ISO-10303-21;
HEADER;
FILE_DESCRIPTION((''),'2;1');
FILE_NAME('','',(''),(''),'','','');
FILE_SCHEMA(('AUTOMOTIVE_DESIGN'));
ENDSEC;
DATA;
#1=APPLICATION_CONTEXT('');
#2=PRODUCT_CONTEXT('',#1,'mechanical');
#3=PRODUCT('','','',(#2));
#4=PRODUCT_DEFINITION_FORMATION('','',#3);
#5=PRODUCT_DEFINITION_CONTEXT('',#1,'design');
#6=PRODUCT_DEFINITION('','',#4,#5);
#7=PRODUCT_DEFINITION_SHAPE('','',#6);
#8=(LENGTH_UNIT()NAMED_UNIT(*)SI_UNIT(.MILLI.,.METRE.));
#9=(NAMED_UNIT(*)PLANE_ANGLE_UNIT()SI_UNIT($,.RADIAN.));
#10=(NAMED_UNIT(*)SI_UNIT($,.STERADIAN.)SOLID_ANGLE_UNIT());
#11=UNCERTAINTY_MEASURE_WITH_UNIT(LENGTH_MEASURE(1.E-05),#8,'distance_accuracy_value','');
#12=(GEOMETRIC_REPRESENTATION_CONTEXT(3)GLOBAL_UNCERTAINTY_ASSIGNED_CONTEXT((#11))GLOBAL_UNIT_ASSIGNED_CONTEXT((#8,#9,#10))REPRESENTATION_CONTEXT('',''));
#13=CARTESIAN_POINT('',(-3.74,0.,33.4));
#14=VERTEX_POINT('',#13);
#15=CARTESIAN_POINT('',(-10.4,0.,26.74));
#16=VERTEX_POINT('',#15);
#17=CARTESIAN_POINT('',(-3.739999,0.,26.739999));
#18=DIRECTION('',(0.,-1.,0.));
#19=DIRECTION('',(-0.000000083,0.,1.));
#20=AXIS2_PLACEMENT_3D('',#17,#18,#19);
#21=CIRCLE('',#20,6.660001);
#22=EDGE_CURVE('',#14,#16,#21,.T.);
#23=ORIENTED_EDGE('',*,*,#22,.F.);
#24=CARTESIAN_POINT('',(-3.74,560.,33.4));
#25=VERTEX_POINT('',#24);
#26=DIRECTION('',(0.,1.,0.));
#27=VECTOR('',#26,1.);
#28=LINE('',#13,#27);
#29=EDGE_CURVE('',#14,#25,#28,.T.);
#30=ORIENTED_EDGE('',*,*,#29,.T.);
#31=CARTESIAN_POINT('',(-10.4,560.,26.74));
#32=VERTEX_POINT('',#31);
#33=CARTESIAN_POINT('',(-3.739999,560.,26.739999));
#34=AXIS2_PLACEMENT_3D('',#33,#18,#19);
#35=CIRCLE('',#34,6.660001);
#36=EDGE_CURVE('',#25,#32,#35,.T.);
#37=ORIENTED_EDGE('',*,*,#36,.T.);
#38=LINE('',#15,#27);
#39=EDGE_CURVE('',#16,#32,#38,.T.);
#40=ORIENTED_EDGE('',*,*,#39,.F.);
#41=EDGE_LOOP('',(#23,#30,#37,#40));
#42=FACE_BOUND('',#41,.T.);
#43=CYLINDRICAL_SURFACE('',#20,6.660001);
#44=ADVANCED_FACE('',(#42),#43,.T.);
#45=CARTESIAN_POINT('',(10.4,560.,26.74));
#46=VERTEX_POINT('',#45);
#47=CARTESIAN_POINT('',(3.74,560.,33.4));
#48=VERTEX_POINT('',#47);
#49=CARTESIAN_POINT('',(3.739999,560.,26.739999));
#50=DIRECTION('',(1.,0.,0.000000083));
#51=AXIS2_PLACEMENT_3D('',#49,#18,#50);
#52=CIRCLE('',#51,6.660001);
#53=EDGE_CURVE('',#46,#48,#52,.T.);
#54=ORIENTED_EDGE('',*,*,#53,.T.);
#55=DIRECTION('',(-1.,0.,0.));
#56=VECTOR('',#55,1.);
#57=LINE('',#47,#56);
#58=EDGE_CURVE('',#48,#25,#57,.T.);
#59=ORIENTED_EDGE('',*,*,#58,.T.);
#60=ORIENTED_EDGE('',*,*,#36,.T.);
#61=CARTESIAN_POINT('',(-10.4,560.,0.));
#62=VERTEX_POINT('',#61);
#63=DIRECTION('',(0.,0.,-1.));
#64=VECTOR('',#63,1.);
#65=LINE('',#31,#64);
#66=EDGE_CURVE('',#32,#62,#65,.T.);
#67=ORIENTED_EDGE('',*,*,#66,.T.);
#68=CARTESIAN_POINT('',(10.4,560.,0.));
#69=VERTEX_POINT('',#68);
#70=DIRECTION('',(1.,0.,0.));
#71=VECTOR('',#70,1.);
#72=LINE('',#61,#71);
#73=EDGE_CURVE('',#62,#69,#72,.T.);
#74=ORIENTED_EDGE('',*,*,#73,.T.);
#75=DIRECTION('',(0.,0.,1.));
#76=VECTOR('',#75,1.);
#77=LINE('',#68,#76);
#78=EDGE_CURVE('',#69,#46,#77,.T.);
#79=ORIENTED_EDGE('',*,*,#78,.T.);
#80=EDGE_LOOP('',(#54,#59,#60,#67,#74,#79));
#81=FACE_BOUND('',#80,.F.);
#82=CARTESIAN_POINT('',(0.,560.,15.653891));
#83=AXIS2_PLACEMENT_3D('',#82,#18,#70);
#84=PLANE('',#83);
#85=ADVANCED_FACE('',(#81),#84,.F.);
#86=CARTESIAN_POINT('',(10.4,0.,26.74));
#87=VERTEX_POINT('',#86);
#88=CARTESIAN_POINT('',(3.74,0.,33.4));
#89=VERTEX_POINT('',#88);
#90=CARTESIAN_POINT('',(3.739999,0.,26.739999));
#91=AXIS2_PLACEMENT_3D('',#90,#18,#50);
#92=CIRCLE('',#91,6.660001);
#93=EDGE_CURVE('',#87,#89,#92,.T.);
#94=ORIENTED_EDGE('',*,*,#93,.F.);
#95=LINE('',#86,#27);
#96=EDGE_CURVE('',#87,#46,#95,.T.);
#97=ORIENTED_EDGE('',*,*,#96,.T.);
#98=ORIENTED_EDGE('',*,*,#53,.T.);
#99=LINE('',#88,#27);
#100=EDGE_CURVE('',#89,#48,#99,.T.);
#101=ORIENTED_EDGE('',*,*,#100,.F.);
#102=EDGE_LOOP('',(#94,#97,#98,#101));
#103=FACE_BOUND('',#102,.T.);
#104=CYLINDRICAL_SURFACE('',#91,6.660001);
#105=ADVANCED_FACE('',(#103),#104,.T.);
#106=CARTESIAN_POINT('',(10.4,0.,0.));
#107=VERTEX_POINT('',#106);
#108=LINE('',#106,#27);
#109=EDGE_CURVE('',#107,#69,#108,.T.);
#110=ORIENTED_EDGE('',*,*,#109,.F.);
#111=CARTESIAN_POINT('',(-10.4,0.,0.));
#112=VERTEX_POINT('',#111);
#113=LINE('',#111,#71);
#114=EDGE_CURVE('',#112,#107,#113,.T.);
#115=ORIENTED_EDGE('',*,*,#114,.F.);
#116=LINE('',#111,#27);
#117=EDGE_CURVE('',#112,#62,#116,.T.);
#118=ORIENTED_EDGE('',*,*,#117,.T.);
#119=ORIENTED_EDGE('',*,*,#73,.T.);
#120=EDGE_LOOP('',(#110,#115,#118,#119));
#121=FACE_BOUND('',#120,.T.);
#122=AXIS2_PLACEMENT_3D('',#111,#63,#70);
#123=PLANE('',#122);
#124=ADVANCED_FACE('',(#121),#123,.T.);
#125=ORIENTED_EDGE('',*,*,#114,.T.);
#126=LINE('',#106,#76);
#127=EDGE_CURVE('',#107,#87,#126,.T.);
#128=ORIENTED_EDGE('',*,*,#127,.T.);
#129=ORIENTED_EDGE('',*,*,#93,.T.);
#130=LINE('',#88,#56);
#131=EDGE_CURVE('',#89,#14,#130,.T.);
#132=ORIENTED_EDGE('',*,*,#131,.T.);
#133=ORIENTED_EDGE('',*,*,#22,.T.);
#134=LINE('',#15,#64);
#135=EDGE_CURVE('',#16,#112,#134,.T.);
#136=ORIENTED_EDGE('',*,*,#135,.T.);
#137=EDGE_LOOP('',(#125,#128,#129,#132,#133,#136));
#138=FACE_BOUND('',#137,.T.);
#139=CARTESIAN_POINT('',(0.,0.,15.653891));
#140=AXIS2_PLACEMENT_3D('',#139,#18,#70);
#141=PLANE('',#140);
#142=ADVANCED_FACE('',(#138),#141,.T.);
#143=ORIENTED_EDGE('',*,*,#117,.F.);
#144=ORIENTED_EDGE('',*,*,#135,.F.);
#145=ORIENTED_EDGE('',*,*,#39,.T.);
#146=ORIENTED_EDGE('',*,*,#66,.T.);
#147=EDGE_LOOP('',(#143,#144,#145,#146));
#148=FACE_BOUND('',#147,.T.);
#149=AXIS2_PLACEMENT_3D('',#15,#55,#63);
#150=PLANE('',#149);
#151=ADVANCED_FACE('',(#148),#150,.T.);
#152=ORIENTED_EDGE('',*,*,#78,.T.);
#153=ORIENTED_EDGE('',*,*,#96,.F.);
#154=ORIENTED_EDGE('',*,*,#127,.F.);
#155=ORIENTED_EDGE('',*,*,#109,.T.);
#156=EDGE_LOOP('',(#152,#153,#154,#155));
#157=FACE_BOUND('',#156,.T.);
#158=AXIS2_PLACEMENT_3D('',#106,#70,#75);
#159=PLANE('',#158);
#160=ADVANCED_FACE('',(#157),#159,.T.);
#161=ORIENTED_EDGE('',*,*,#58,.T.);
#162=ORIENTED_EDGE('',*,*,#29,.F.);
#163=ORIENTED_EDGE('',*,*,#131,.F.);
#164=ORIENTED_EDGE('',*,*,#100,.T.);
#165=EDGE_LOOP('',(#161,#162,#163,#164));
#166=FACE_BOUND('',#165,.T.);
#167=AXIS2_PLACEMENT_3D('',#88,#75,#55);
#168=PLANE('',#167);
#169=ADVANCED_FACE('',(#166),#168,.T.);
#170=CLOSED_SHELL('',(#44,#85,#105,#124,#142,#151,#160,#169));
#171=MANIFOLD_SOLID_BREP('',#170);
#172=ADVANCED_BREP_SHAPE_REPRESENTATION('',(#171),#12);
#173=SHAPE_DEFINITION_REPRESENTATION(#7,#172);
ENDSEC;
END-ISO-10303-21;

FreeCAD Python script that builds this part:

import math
import FreeCAD as App
import Part
import Sketcher

V = App.Vector
Q = App.Units.Quantity

doc = App.newDocument("Part")
body = doc.addObject("PartDesign::Body", "Body")

sketch1 = body.newObject("Sketcher::SketchObject", "Sketch")
sketch1.AttachmentSupport = (doc.getObject("XZ_Plane"), [""])
sketch1.MapMode = "FlatFace"
sketch1.addGeometry([
    Part.LineSegment(V(-10, 27, 0), V(-10, 0, 0)),
    Part.LineSegment(V(-10, 0, 0), V(10, 0, 0)),
    Part.LineSegment(V(10, 0, 0), V(10, 27, 0)),
    Part.ArcOfCircle(Part.Circle(V(4, 27, 0), V(0, 0, 1), 7), math.radians(0), math.radians(90)),
    Part.LineSegment(V(4, 33, 0), V(-4, 33, 0)),
    Part.ArcOfCircle(Part.Circle(V(-4, 27, 0), V(0, 0, 1), 7), math.radians(90), math.radians(180)),
], False)
sketch1.addConstraint([
    Sketcher.Constraint("Coincident", 0, 2, 1, 1),
    Sketcher.Constraint("Coincident", 1, 2, 2, 1),
    Sketcher.Constraint("Tangent", 2, 2, 3, 1),
    Sketcher.Constraint("Tangent", 3, 2, 4, 1),
    Sketcher.Constraint("Tangent", 4, 2, 5, 1),
    Sketcher.Constraint("Tangent", 5, 2, 0, 1),
    Sketcher.Constraint("Vertical", 0),
    Sketcher.Constraint("Horizontal", 1),
    Sketcher.Constraint("Vertical", 2),
    Sketcher.Constraint("Horizontal", 4),
    Sketcher.Constraint("Equal", 3, 5),
    Sketcher.Constraint("Symmetric", 0, 2, 1, 2, -1, 1),
    Sketcher.Constraint("Radius", 3, Q("6.660001 mm")),
    Sketcher.Constraint("DistanceX", 1, 1, 1, 2, Q("20.8 mm")),
    Sketcher.Constraint("DistanceY", 0, 2, 0, 1, Q("26.74 mm")),
])
pad1 = body.newObject("PartDesign::Pad", "Pad")
pad1.Profile = sketch1
pad1.Length = 560
pad1.Reversed = True

doc.recompute()
